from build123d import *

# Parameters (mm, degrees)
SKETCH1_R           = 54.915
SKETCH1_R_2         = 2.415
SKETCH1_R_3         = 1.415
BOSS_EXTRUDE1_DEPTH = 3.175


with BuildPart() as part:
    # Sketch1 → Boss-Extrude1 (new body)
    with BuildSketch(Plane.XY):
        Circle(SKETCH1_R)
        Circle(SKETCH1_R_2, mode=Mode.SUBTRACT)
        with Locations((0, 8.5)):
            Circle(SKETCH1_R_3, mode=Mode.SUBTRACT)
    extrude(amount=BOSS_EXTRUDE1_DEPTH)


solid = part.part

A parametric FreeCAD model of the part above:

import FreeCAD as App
import Part
import Sketcher
from FreeCAD import Vector
Q = App.Units.Quantity

doc = App.newDocument("Part")
body = doc.addObject("PartDesign::Body", "Body")

# Sketch on XY plane
sketch1 = body.newObject("Sketcher::SketchObject", "Sketch")
sketch1.AttachmentSupport = (doc.getObject("XY_Plane"), [""])
sketch1.MapMode = "FlatFace"
sketch1.addGeometry(Part.Circle(Vector(0, 0, 0), Vector(0, 0, 1), 54.9), False)
sketch1.addGeometry(Part.Circle(Vector(0, 0, 0), Vector(0, 0, 1), 2.4), False)
sketch1.addGeometry(Part.Circle(Vector(0, 8.5, 0), Vector(0, 0, 1), 1.4), False)
sketch1.addConstraint(Sketcher.Constraint("Coincident", 0, 3, -1, 1))
sketch1.addConstraint(Sketcher.Constraint("Coincident", 1, 3, -1, 1))
sketch1.addConstraint(Sketcher.Constraint("PointOnObject", 2, 3, -2))
sketch1.addConstraint(Sketcher.Constraint("Diameter", 0, 109.83))
sketch1.addConstraint(Sketcher.Constraint("Diameter", 1, 4.83))
sketch1.addConstraint(Sketcher.Constraint("Diameter", 2, 2.83))
sketch1.addConstraint(Sketcher.Constraint("DistanceY", -1, 1, 2, 3, 8.5))
pad1 = body.newObject("PartDesign::Pad", "Pad")
pad1.Profile = sketch1
pad1.Length = Q("0.125 in")

doc.recompute()
